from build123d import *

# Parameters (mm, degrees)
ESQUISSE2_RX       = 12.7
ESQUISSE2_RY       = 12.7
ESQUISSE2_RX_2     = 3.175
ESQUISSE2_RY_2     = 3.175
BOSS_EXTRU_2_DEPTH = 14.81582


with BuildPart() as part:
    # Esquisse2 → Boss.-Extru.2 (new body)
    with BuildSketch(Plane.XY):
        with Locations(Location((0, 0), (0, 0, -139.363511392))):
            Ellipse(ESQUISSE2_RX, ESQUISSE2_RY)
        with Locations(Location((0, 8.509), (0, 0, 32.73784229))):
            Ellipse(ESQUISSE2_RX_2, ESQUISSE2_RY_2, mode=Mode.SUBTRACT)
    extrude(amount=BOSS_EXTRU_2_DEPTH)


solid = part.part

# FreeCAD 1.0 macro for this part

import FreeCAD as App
import Part
import Sketcher
from FreeCAD import Vector

doc = App.newDocument("Part")
body = doc.addObject("PartDesign::Body", "Body")

sketch1 = body.newObject("Sketcher::SketchObject", "Sketch")
sketch1.AttachmentSupport = (doc.getObject("XY_Plane"), [""])
sketch1.MapMode = "FlatFace"
sketch1.addGeometry(Part.Ellipse(Vector(-9.63748, -8.270972, 0), Vector(8.270972, -9.63748, 0), Vector(0, 0, 0)), False)
sketch1.addGeometry(Part.Ellipse(Vector(2.670663, 10.226027, 0), Vector(-1.717027, 11.179663, 0), Vector(0, 8.509, 0)), False)
sketch1.addConstraint(Sketcher.Constraint("Block", 0))
sketch1.addConstraint(Sketcher.Constraint("Block", 1))
pad1 = body.newObject("PartDesign::Pad", "Pad")
pad1.Profile = sketch1
pad1.Length = 14.81582

doc.recompute()
